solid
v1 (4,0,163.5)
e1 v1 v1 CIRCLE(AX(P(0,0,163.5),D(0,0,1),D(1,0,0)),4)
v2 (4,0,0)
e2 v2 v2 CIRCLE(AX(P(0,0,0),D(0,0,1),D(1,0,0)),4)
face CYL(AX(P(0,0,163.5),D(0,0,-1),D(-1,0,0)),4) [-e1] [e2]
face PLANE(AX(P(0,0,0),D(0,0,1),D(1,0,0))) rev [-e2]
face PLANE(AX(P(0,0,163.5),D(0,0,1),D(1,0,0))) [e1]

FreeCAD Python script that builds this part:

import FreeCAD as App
import Part
import Sketcher

doc = App.newDocument("Part")
body = doc.addObject("PartDesign::Body", "Body")

# Sketch on XY plane
sketch1 = body.newObject("Sketcher::SketchObject", "Sketch")
sketch1.AttachmentSupport = (doc.getObject("XY_Plane"), [""])
sketch1.MapMode = "FlatFace"
sketch1.addGeometry(Part.Circle(App.Vector(0, 0, 0), App.Vector(0, 0, 1), 4), False)
sketch1.addConstraint(Sketcher.Constraint("Coincident", 0, 3, -1, 1))
sketch1.addConstraint(Sketcher.Constraint("Diameter", 0, 8.0))
pad1 = body.newObject("PartDesign::Pad", "Pad")
pad1.Profile = sketch1
pad1.Length = 163.5

doc.recompute()
